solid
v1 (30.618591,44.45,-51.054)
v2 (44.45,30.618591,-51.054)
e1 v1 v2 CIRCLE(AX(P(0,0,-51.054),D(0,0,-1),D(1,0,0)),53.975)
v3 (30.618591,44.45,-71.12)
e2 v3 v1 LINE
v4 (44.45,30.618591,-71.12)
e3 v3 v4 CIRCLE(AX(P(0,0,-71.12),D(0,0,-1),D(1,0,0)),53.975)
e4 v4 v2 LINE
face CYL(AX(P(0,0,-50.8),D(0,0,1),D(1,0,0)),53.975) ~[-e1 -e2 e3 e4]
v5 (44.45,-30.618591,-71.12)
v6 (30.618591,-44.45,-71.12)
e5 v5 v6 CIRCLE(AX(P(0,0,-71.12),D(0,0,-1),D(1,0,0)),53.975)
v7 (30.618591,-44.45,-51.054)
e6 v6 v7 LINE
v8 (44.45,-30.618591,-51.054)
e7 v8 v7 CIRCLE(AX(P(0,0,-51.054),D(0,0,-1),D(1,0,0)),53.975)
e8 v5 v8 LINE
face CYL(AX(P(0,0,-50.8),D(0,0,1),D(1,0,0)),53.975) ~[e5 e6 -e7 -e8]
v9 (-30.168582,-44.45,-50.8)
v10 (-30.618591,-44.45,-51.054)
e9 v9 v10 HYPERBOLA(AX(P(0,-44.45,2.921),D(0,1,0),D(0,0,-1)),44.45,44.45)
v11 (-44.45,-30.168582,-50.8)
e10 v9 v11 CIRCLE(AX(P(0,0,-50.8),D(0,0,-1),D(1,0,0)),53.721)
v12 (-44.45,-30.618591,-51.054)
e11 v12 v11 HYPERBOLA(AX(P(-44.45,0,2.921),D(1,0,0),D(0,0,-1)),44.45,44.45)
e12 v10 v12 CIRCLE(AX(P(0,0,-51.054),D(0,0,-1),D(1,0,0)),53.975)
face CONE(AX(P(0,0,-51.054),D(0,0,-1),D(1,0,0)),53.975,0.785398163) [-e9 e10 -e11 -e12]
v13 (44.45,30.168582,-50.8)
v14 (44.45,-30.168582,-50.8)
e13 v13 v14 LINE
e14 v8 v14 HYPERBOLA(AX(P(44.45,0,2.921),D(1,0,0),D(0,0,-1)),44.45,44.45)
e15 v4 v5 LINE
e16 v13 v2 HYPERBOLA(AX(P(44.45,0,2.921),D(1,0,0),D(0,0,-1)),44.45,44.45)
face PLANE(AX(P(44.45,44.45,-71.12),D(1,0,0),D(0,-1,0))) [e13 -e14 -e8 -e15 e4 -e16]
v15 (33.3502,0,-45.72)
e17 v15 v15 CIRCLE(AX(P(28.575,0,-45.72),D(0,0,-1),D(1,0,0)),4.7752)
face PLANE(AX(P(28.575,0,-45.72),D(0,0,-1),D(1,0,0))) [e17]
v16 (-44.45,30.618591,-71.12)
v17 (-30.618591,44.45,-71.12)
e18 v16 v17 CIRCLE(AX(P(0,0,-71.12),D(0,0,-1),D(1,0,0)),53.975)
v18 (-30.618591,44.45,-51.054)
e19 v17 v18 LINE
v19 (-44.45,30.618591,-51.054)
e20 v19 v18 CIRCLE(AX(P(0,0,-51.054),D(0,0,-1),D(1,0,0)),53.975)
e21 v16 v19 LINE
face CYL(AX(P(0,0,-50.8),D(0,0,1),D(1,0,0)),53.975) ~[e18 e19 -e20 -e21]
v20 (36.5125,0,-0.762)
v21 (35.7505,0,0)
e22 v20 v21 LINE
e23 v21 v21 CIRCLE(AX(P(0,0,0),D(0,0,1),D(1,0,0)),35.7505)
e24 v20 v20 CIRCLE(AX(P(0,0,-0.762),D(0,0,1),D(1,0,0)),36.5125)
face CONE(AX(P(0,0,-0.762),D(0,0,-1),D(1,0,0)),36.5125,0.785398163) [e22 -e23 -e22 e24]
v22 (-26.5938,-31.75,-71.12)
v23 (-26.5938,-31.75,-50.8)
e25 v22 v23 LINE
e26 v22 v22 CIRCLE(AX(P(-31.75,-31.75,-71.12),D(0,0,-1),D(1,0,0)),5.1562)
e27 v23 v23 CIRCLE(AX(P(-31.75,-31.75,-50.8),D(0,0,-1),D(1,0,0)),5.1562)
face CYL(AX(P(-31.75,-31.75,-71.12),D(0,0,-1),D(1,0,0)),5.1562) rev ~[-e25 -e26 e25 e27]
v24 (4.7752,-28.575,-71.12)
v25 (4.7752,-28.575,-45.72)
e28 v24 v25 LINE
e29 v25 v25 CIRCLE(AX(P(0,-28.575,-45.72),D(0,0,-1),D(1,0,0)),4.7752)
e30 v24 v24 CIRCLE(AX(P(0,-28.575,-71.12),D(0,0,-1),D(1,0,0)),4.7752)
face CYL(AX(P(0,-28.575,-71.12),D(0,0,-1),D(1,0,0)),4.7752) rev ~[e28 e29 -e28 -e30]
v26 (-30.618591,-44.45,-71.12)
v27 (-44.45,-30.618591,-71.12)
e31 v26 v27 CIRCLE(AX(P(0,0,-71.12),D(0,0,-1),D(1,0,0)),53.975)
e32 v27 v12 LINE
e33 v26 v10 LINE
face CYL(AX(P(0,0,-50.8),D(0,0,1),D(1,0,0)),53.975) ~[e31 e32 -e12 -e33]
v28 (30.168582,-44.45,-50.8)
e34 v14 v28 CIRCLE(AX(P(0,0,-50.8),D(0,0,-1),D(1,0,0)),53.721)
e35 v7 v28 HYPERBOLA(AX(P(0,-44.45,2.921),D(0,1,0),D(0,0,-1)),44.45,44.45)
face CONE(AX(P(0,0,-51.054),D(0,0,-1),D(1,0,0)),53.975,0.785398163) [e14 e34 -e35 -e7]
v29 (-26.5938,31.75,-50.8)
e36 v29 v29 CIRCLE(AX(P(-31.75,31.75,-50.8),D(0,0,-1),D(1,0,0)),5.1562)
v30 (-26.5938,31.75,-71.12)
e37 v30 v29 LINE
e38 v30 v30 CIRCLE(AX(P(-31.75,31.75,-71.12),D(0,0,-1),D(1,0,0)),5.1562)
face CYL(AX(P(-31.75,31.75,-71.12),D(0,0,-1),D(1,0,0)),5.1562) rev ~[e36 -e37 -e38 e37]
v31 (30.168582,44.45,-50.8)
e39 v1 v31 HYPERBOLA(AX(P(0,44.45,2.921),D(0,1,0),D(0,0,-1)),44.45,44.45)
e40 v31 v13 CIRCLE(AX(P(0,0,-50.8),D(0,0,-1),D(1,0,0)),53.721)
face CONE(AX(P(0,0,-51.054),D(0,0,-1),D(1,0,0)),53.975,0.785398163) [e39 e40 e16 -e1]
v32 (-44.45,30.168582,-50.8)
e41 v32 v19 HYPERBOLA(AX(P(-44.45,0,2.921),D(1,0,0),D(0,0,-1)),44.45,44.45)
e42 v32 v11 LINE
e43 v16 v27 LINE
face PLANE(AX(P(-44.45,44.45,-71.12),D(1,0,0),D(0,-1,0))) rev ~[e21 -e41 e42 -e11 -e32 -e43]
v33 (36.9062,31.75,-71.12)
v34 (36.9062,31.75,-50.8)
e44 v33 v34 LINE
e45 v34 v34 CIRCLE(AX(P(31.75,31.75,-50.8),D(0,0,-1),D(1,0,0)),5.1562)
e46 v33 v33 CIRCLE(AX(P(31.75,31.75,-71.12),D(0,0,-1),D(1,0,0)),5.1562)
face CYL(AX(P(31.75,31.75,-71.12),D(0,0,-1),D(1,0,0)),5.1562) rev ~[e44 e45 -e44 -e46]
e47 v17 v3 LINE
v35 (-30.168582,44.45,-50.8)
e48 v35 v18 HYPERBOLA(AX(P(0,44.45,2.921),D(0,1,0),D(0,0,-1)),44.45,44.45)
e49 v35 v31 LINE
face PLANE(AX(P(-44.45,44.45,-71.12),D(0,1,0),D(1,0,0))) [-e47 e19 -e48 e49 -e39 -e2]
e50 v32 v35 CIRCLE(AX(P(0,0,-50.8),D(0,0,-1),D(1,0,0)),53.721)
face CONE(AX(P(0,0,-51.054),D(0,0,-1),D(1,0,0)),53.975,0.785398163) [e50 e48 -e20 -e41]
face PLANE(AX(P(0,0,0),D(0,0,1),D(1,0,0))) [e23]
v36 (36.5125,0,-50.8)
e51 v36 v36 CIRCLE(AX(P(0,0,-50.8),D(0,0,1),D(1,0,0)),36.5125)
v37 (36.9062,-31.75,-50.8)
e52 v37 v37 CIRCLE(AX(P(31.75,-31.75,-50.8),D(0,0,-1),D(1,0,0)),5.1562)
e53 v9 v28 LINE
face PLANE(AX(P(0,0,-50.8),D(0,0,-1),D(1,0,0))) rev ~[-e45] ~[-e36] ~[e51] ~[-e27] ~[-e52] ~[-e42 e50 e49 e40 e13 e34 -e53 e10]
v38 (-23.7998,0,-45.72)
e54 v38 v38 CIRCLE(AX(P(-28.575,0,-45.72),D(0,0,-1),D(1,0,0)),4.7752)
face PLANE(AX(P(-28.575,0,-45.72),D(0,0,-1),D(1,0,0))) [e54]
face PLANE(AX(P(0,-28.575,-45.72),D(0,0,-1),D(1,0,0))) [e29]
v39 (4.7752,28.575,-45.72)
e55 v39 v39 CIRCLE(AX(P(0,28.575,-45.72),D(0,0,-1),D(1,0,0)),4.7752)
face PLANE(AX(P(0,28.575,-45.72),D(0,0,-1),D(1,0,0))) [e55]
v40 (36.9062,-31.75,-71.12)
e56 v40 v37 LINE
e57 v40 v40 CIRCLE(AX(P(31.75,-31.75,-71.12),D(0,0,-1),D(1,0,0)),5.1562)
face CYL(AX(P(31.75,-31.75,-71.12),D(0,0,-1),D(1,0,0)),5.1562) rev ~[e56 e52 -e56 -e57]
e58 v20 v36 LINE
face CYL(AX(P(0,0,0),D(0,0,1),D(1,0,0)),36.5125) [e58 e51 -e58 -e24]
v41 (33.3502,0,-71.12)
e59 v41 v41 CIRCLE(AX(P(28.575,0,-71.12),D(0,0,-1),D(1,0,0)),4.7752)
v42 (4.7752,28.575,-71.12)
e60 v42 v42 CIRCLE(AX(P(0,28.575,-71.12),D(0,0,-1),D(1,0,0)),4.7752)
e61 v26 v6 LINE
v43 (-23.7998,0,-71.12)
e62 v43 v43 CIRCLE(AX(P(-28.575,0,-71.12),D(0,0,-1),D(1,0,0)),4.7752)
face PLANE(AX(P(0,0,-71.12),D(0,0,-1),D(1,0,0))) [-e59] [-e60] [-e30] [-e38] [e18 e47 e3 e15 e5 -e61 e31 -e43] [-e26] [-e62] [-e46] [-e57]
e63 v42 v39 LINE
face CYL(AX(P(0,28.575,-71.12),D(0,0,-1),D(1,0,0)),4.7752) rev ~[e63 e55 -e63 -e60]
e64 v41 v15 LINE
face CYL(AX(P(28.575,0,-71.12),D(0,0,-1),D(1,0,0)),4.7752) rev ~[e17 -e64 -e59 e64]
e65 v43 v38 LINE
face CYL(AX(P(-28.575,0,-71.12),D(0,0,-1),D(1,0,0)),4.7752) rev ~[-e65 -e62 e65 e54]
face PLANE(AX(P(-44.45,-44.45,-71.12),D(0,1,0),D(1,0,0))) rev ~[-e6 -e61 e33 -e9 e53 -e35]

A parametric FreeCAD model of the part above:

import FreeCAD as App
import Part
import Sketcher
from FreeCAD import Vector
Q = App.Units.Quantity


def edges_at(feature, points):
    """Names of the edges that pass closest to the given points."""
    edges = feature.Shape.Edges
    near = lambda p: min(range(len(edges)), key=lambda i: edges[i].distToShape(Part.Vertex(*p))[0])
    return sorted({f"Edge{near(p) + 1}" for p in points})

doc = App.newDocument("Part")
body = doc.addObject("PartDesign::Body", "Body")

# Sketch on XY plane
sketch1 = body.newObject("Sketcher::SketchObject", "Sketch")
sketch1.AttachmentSupport = (doc.getObject("XY_Plane"), [""])
sketch1.MapMode = "FlatFace"
sketch1.addGeometry(Part.Circle(Vector(0, 0, 0), Vector(0, 0, 1), 37), False)
sketch1.addConstraint([
    Sketcher.Constraint("Coincident", 0, 3, -1, 1),
    Sketcher.Constraint("Diameter", 0, Q("2.875 in")),
])
pad1 = body.newObject("PartDesign::Pad", "Pad")
pad1.Profile = sketch1
pad1.Length = Q("2 in")
pad1.Reversed = True

# Sketch on XY plane
sketch2 = body.newObject("Sketcher::SketchObject", "Sketch001")
sketch2.AttachmentSupport = (doc.getObject("XY_Plane"), [""])
sketch2.MapMode = "FlatFace"
sketch2.AttachmentOffset = App.Placement(Vector(0, 0, -2 * 25.4), App.Rotation())
sketch2.addGeometry(Part.Circle(Vector(0, 0, 0), Vector(0, 0, 1), 54), False)
sketch2.addConstraint([
    Sketcher.Constraint("Coincident", 0, 3, -1, 1),
    Sketcher.Constraint("Diameter", 0, Q("4.25 in")),
])
pad2 = body.newObject("PartDesign::Pad", "Pad001")
pad2.Profile = sketch2
pad2.Length = Q("0.8 in")
pad2.Reversed = True
doc.recompute()

chamfer = body.newObject("PartDesign::Chamfer", "Chamfer")
chamfer.Base = (pad2, edges_at(pad2, [(-36.513, 0, 0)]))
chamfer.Size = Q("0.03 in")
doc.recompute()

chamfer2 = body.newObject("PartDesign::Chamfer", "Chamfer001")
chamfer2.Base = (chamfer, edges_at(chamfer, [(-53.975, 0, -50.8)]))
chamfer2.Size = Q("0.01 in")

# Sketch on XY plane
sketch3 = body.newObject("Sketcher::SketchObject", "Sketch002")
sketch3.AttachmentSupport = (doc.getObject("XY_Plane"), [""])
sketch3.MapMode = "FlatFace"
sketch3.AttachmentOffset = App.Placement(Vector(0, 0, -2.8 * 25.4), App.Rotation())
sketch3.addGeometry([
    Part.Circle(Vector(0, 0, 0), Vector(0, 0, 1), 70),  # 0
    Part.LineSegment(Vector(44, 44, 0), Vector(-44, 44, 0)),  # 1
    Part.LineSegment(Vector(-44, 44, 0), Vector(-44, -44, 0)),  # 2
    Part.LineSegment(Vector(-44, -44, 0), Vector(44, -44, 0)),  # 3
    Part.LineSegment(Vector(44, -44, 0), Vector(44, 44, 0)),  # 4
], False)
sketch3.addConstraint([
    Sketcher.Constraint("Coincident", 1, 2, 2, 1),
    Sketcher.Constraint("Coincident", 2, 2, 3, 1),
    Sketcher.Constraint("Coincident", 3, 2, 4, 1),
    Sketcher.Constraint("Coincident", 4, 2, 1, 1),
    Sketcher.Constraint("Horizontal", 1),
    Sketcher.Constraint("Vertical", 2),
    Sketcher.Constraint("Horizontal", 3),
    Sketcher.Constraint("Vertical", 4),
    Sketcher.Constraint("Coincident", 0, 3, -1, 1),
    Sketcher.Constraint("Symmetric", 1, 2, 3, 2, -1, 1),
    Sketcher.Constraint("Equal", 3, 2),
    Sketcher.Constraint("Diameter", 0, Q("5.5 in")),
    Sketcher.Constraint("DistanceX", 1, 2, 1, 1, Q("3.5 in")),
])
pocket1 = body.newObject("PartDesign::Pocket", "Pocket")
pocket1.Profile = sketch3
pocket1.Length = Q("1 in")
pocket1.Reversed = True

# Sketch on XY plane
sketch4 = body.newObject("Sketcher::SketchObject", "Sketch003")
sketch4.AttachmentSupport = (doc.getObject("XY_Plane"), [""])
sketch4.MapMode = "FlatFace"
sketch4.AttachmentOffset = App.Placement(Vector(0, 0, -2.8 * 25.4), App.Rotation())
sketch4.addGeometry([
    Part.Circle(Vector(-28.6, 0, 0), Vector(0, 0, 1), 4.8),  # 0
    Part.Circle(Vector(28.6, 0, 0), Vector(0, 0, 1), 4.8),  # 1
    Part.Circle(Vector(0, -28.6, 0), Vector(0, 0, 1), 4.8),  # 2
    Part.Circle(Vector(0, 28.6, 0), Vector(0, 0, 1), 4.8),  # 3
    Part.Circle(Vector(-31.8, -31.8, 0), Vector(0, 0, 1), 5.2),  # 4
    Part.Circle(Vector(31.8, -31.8, 0), Vector(0, 0, 1), 5.2),  # 5
    Part.Circle(Vector(31.8, 31.8, 0), Vector(0, 0, 1), 5.2),  # 6
    Part.Circle(Vector(-31.8, 31.8, 0), Vector(0, 0, 1), 5.2),  # 7
], False)
sketch4.addConstraint([
    Sketcher.Constraint("Equal", 0, 1),
    Sketcher.Constraint("Equal", 1, 2),
    Sketcher.Constraint("Equal", 2, 3),
    Sketcher.Constraint("Equal", 4, 5),
    Sketcher.Constraint("Equal", 5, 6),
    Sketcher.Constraint("Equal", 6, 7),
    Sketcher.Constraint("Symmetric", 0, 3, 1, 3, -1, 1),
    Sketcher.Constraint("Symmetric", 2, 3, 3, 3, -1, 1),
    Sketcher.Constraint("Symmetric", 4, 3, 6, 3, -1, 1),
    Sketcher.Constraint("Symmetric", 5, 3, 7, 3, -1, 1),
    Sketcher.Constraint("Symmetric", 4, 3, 5, 3, -2),
    Sketcher.Constraint("PointOnObject", 0, 3, -1),
    Sketcher.Constraint("PointOnObject", 2, 3, -2),
    Sketcher.Constraint("Diameter", 0, Q("0.376 in")),
    Sketcher.Constraint("Diameter", 4, Q("0.406 in")),
    Sketcher.Constraint("DistanceX", 4, 3, 5, 3, Q("2.5 in")),
    Sketcher.Constraint("DistanceY", 5, 3, 6, 3, Q("2.5 in")),
    Sketcher.Constraint("DistanceX", 0, 3, 1, 3, Q("2.25 in")),
    Sketcher.Constraint("DistanceY", 2, 3, 3, 3, Q("2.25 in")),
])
pocket2 = body.newObject("PartDesign::Pocket", "Pocket001")
pocket2.Profile = sketch4
pocket2.Length = Q("1 in")
pocket2.Reversed = True

doc.recompute()
